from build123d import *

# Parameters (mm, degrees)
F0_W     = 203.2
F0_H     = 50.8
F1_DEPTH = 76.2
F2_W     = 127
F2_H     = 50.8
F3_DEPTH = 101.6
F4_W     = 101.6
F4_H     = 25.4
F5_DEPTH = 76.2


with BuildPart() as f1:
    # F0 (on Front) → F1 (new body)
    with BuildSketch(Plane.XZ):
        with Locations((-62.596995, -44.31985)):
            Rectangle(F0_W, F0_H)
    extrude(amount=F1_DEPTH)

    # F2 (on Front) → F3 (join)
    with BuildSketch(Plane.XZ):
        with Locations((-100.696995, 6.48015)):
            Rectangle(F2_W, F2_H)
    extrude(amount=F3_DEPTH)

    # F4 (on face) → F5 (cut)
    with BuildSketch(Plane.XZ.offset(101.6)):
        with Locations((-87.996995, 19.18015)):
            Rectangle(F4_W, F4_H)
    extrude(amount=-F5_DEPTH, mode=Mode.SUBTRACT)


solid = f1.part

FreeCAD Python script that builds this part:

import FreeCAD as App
import Part
import Sketcher
from FreeCAD import Vector
Q = App.Units.Quantity

doc = App.newDocument("Part")
body = doc.addObject("PartDesign::Body", "Body")

sketch1 = doc.addObject("Sketcher::SketchObject", "Sketch")
body.addObject(sketch1)
sketch1.AttachmentSupport = (doc.XZ_Plane, [""])
sketch1.MapMode = "FlatFace"
sketch1.addGeometry([
    Part.LineSegment(Vector(-164, -19, 0), Vector(-164, -70, 0)),
    Part.LineSegment(Vector(-164, -70, 0), Vector(39, -70, 0)),
    Part.LineSegment(Vector(39, -70, 0), Vector(39, -19, 0)),
    Part.LineSegment(Vector(39, -19, 0), Vector(-164, -19, 0)),
], False)
sketch1.addConstraint([
    Sketcher.Constraint("Coincident", 0, 2, 1, 1),
    Sketcher.Constraint("Coincident", 1, 2, 2, 1),
    Sketcher.Constraint("Coincident", 2, 2, 3, 1),
    Sketcher.Constraint("Coincident", 3, 2, 0, 1),
    Sketcher.Constraint("Vertical", 0),
    Sketcher.Constraint("Horizontal", 1),
    Sketcher.Constraint("Vertical", 2),
    Sketcher.Constraint("Horizontal", 3),
    Sketcher.Constraint("DistanceX", 1, 1, 1, 2, Q("8 in")),
    Sketcher.Constraint("DistanceY", 0, 2, 0, 1, Q("2 in")),
    Sketcher.Constraint("DistanceY", 0, 2, -1, 1, Q("69.71985 mm")),
    Sketcher.Constraint("DistanceX", 0, 2, -1, 1, Q("164.196995 mm")),
])
pad1 = doc.addObject("PartDesign::Pad", "Pad")
body.addObject(pad1)
pad1.Profile = sketch1
pad1.Length = Q("3 in")

sketch2 = doc.addObject("Sketcher::SketchObject", "Sketch001")
body.addObject(sketch2)
sketch2.AttachmentSupport = (doc.XZ_Plane, [""])
sketch2.MapMode = "FlatFace"
sketch2.addGeometry([
    Part.LineSegment(Vector(-164, 32, 0), Vector(-164, -19, 0)),
    Part.LineSegment(Vector(-164, -19, 0), Vector(-37, -19, 0)),
    Part.LineSegment(Vector(-37, -19, 0), Vector(-37, 32, 0)),
    Part.LineSegment(Vector(-37, 32, 0), Vector(-164, 32, 0)),
], False)
sketch2.addConstraint([
    Sketcher.Constraint("Coincident", 0, 2, 1, 1),
    Sketcher.Constraint("Coincident", 1, 2, 2, 1),
    Sketcher.Constraint("Coincident", 2, 2, 3, 1),
    Sketcher.Constraint("Coincident", 3, 2, 0, 1),
    Sketcher.Constraint("Vertical", 0),
    Sketcher.Constraint("Horizontal", 1),
    Sketcher.Constraint("Vertical", 2),
    Sketcher.Constraint("Horizontal", 3),
    Sketcher.Constraint("DistanceX", 1, 1, 1, 2, Q("5 in")),
    Sketcher.Constraint("DistanceY", 0, 2, 0, 1, Q("2 in")),
    Sketcher.Constraint("DistanceY", 0, 2, -1, 1, Q("18.91985 mm")),
    Sketcher.Constraint("DistanceX", 0, 2, -1, 1, Q("164.196995 mm")),
])
pad2 = doc.addObject("PartDesign::Pad", "Pad001")
body.addObject(pad2)
pad2.Profile = sketch2
pad2.Length = Q("4 in")

sketch3 = doc.addObject("Sketcher::SketchObject", "Sketch002")
body.addObject(sketch3)
sketch3.AttachmentSupport = (doc.XZ_Plane, [""])
sketch3.MapMode = "FlatFace"
sketch3.AttachmentOffset = App.Placement(Vector(0, 0, 4 * 25.4), App.Rotation())
sketch3.addGeometry([
    Part.LineSegment(Vector(-139, 32, 0), Vector(-139, 6, 0)),
    Part.LineSegment(Vector(-139, 6, 0), Vector(-37, 6, 0)),
    Part.LineSegment(Vector(-37, 6, 0), Vector(-37, 32, 0)),
    Part.LineSegment(Vector(-37, 32, 0), Vector(-139, 32, 0)),
], False)
sketch3.addConstraint([
    Sketcher.Constraint("Coincident", 0, 2, 1, 1),
    Sketcher.Constraint("Coincident", 1, 2, 2, 1),
    Sketcher.Constraint("Coincident", 2, 2, 3, 1),
    Sketcher.Constraint("Coincident", 3, 2, 0, 1),
    Sketcher.Constraint("Vertical", 0),
    Sketcher.Constraint("Horizontal", 1),
    Sketcher.Constraint("Vertical", 2),
    Sketcher.Constraint("Horizontal", 3),
    Sketcher.Constraint("DistanceX", 1, 1, 1, 2, Q("4 in")),
    Sketcher.Constraint("DistanceY", 0, 2, 0, 1, Q("1 in")),
    Sketcher.Constraint("DistanceY", -1, 1, 0, 2, Q("6.48015 mm")),
    Sketcher.Constraint("DistanceX", 0, 2, -1, 1, Q("138.796995 mm")),
])
pocket1 = doc.addObject("PartDesign::Pocket", "Pocket")
body.addObject(pocket1)
pocket1.Profile = sketch3
pocket1.Length = Q("3 in")

doc.recompute()
